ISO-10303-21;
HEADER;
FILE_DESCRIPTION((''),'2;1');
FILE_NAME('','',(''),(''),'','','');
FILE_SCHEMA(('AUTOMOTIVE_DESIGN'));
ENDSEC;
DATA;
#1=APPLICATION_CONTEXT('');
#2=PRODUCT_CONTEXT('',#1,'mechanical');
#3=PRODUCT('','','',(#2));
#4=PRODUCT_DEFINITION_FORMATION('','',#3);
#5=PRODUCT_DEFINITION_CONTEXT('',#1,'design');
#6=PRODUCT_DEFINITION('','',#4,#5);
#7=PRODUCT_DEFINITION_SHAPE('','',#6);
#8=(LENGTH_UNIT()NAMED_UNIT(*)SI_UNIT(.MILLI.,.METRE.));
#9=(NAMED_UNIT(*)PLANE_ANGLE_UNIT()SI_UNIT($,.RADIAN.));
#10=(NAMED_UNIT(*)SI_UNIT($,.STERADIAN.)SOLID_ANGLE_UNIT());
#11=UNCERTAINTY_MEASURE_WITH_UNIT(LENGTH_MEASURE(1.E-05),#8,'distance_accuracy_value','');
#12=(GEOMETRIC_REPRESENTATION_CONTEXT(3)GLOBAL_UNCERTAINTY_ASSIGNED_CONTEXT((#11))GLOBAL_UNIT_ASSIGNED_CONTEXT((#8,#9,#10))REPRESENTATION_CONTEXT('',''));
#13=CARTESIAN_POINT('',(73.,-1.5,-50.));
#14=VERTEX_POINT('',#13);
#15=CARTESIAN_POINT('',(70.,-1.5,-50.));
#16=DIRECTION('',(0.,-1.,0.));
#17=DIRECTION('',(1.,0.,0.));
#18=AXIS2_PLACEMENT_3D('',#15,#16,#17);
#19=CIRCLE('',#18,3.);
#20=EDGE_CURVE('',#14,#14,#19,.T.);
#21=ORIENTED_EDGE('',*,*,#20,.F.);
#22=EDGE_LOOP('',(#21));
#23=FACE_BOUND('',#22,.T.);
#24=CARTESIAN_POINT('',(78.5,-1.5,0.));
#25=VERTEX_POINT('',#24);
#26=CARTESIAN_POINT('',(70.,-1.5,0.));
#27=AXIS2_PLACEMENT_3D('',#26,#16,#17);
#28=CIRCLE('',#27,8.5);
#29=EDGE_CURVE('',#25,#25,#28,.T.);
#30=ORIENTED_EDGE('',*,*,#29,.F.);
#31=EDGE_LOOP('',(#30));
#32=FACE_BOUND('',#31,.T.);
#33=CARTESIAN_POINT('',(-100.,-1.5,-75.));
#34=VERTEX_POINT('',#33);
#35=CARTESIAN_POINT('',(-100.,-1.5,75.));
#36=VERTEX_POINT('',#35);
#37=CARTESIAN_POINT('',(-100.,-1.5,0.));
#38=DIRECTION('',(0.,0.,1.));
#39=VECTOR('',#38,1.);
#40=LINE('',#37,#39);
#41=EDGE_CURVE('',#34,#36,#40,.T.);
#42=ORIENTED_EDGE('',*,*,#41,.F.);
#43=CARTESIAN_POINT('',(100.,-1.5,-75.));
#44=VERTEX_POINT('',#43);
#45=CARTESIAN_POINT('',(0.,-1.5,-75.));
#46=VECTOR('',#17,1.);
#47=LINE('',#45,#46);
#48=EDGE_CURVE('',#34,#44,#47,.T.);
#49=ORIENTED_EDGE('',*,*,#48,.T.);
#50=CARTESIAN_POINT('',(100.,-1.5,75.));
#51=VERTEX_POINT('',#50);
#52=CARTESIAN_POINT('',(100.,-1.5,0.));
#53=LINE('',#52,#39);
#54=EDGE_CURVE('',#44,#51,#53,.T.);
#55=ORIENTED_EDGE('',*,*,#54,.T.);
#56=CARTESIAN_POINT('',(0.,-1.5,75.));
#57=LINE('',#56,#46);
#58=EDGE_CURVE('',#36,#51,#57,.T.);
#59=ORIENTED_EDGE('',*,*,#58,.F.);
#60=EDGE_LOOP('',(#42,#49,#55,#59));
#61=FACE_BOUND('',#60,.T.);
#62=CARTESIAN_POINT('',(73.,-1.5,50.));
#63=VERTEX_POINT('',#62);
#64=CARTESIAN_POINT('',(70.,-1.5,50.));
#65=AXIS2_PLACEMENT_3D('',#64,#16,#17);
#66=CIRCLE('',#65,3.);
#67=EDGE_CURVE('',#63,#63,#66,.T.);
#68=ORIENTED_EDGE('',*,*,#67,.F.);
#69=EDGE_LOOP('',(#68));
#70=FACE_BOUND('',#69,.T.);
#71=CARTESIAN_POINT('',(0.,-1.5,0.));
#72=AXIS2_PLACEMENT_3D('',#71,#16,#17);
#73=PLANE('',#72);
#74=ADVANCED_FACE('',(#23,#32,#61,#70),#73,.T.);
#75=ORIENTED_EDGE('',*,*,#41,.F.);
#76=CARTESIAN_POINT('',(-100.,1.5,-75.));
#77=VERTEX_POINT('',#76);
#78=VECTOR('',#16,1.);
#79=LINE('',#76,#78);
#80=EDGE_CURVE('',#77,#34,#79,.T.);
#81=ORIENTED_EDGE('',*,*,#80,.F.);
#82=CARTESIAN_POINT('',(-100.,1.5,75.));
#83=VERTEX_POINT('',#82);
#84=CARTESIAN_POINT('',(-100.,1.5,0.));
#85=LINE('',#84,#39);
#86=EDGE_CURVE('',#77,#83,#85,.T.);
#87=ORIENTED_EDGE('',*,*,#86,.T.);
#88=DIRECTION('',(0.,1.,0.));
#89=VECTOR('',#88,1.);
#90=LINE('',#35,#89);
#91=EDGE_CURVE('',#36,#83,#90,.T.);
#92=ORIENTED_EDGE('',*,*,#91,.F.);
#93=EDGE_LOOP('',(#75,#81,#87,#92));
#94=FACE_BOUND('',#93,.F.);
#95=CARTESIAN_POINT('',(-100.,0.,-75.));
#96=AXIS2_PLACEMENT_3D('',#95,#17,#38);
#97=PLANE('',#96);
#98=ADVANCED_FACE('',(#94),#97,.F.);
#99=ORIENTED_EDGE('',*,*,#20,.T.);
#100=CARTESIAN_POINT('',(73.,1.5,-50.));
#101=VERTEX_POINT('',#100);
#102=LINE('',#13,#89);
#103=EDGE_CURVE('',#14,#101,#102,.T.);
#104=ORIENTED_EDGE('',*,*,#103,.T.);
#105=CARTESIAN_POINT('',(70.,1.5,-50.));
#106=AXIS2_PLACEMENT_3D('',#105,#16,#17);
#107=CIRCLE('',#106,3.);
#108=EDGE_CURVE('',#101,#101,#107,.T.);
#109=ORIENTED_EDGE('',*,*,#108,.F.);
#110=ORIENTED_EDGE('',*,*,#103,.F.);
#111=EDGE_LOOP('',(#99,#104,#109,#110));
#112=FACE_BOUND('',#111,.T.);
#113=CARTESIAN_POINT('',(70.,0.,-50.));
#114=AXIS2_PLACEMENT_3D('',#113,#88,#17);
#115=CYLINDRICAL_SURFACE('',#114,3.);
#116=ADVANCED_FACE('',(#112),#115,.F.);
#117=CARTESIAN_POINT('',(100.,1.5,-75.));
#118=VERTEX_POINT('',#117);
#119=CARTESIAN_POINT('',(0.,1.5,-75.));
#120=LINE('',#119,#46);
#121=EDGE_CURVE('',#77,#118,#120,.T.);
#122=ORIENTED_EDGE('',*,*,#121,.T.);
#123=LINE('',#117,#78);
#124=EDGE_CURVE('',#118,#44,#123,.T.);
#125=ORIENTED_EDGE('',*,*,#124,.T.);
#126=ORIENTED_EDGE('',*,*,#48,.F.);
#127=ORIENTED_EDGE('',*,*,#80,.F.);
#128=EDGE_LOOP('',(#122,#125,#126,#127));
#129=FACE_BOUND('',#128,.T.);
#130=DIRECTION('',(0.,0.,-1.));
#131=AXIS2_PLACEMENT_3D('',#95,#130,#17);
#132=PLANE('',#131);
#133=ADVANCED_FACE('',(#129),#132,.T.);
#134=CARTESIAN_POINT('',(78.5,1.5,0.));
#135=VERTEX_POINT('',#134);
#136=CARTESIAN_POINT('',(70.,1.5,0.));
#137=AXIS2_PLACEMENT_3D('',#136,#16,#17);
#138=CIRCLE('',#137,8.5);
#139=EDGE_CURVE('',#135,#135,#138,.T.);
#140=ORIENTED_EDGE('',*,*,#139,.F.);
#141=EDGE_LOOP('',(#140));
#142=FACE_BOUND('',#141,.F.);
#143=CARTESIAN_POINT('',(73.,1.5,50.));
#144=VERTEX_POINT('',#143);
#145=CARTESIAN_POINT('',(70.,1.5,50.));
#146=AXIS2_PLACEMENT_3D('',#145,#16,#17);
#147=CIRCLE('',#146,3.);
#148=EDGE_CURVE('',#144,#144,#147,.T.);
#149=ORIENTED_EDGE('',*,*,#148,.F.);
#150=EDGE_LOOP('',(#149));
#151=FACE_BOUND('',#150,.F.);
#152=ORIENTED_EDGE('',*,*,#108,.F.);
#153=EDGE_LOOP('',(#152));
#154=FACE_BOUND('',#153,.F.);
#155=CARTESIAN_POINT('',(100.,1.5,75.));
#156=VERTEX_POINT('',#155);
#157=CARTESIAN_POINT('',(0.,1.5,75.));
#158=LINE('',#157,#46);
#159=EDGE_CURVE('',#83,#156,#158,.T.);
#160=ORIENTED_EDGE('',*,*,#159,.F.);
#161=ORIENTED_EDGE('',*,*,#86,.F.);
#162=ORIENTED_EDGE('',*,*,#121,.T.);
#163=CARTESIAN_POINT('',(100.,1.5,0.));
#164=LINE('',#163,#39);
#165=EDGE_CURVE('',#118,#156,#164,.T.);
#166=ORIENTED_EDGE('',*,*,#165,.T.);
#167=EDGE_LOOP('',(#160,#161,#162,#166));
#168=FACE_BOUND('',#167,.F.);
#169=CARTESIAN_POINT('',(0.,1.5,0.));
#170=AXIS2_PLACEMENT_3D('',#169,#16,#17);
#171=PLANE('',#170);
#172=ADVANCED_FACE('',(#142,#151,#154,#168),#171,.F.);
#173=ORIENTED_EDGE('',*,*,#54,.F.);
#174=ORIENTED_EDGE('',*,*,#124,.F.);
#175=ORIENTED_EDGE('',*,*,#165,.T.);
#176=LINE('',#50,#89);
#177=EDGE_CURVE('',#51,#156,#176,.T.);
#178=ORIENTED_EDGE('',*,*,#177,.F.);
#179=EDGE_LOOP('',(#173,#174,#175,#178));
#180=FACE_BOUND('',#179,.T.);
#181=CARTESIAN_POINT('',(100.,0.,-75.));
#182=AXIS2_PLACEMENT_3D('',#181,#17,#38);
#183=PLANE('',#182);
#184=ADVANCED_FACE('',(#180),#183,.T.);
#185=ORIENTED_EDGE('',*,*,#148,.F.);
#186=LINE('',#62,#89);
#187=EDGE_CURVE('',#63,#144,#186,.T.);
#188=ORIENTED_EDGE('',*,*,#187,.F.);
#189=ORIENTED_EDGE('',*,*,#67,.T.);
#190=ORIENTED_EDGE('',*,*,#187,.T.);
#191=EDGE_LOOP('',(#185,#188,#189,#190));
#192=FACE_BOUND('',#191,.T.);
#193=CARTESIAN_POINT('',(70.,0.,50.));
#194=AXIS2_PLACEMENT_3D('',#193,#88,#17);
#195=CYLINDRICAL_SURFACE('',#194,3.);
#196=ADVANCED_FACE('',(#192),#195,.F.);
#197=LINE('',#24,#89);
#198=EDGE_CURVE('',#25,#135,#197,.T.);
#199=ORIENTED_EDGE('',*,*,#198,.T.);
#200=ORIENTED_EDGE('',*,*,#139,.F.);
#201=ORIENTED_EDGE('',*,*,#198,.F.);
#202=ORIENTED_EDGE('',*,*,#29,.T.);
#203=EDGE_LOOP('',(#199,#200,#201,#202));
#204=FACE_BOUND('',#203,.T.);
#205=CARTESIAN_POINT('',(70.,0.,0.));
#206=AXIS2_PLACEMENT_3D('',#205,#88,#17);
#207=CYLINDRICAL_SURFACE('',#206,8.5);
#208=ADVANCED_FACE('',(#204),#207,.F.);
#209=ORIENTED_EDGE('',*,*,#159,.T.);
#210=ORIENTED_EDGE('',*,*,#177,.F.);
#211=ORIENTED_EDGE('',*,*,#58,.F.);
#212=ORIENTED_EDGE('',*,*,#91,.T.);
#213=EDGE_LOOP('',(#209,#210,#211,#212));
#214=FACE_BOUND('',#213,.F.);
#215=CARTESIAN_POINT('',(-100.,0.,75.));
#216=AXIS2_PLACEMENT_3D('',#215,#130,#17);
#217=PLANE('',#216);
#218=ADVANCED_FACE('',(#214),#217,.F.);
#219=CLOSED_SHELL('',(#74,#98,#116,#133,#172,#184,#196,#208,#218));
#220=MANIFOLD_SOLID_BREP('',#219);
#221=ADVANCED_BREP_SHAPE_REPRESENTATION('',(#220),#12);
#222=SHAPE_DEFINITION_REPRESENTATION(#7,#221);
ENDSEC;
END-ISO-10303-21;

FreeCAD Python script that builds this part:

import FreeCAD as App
import Part
import Sketcher
from FreeCAD import Vector
Q = App.Units.Quantity


def add_polygon(sketch, points):
    """Adds a closed chain of lines whose ends are joined by coincident constraints."""
    first, n = sketch.GeometryCount, len(points)
    for a, b in zip(points, points[1:] + points[:1]):
        sketch.addGeometry(Part.LineSegment(App.Vector(*a, 0), App.Vector(*b, 0)), False)
    for i in range(n):
        sketch.addConstraint(Sketcher.Constraint("Coincident", first + i, 2, first + (i + 1) % n, 1))

doc = App.newDocument("Part")
body = doc.addObject("PartDesign::Body", "Body")

# Sketch on XZ plane
sketch1 = body.newObject("Sketcher::SketchObject", "Sketch")
sketch1.AttachmentSupport = (doc.getObject("XZ_Plane"), [""])
sketch1.MapMode = "FlatFace"
add_polygon(sketch1, [(-100, 75), (-100, -75), (100, -75), (100, 75)])  # lines 0-3
sketch1.addGeometry(Part.Circle(Vector(70, -50, 0), Vector(0, 0, 1), 3), False)  # 4
sketch1.addGeometry(Part.Circle(Vector(70, 0, 0), Vector(0, 0, 1), 8.5), False)  # 5
sketch1.addGeometry(Part.Circle(Vector(70, 50, 0), Vector(0, 0, 1), 3), False)  # 6
sketch1.addConstraint(Sketcher.Constraint("Vertical", 0))
sketch1.addConstraint(Sketcher.Constraint("Horizontal", 1))
sketch1.addConstraint(Sketcher.Constraint("Vertical", 2))
sketch1.addConstraint(Sketcher.Constraint("Horizontal", 3))
sketch1.addConstraint(Sketcher.Constraint("Equal", 4, 6))
sketch1.addConstraint(Sketcher.Constraint("Symmetric", 0, 2, 2, 2, -1, 1))
sketch1.addConstraint(Sketcher.Constraint("Symmetric", 4, 3, 6, 3, -1))
sketch1.addConstraint(Sketcher.Constraint("PointOnObject", 5, 3, -1))
sketch1.addConstraint(Sketcher.Constraint("Vertical", 4, 3, 5, 3))
sketch1.addConstraint(Sketcher.Constraint("Diameter", 4, Q("6 mm")))
sketch1.addConstraint(Sketcher.Constraint("Diameter", 5, Q("17 mm")))
sketch1.addConstraint(Sketcher.Constraint("DistanceX", 1, 1, 1, 2, Q("200 mm")))
sketch1.addConstraint(Sketcher.Constraint("DistanceY", 0, 2, 0, 1, Q("150 mm")))
sketch1.addConstraint(Sketcher.Constraint("DistanceX", -1, 1, 4, 3, Q("70 mm")))
sketch1.addConstraint(Sketcher.Constraint("DistanceY", 4, 3, -1, 1, Q("50 mm")))
pad1 = body.newObject("PartDesign::Pad", "Pad")
pad1.Profile = sketch1
pad1.Length = 3
pad1.Midplane = True

doc.recompute()
